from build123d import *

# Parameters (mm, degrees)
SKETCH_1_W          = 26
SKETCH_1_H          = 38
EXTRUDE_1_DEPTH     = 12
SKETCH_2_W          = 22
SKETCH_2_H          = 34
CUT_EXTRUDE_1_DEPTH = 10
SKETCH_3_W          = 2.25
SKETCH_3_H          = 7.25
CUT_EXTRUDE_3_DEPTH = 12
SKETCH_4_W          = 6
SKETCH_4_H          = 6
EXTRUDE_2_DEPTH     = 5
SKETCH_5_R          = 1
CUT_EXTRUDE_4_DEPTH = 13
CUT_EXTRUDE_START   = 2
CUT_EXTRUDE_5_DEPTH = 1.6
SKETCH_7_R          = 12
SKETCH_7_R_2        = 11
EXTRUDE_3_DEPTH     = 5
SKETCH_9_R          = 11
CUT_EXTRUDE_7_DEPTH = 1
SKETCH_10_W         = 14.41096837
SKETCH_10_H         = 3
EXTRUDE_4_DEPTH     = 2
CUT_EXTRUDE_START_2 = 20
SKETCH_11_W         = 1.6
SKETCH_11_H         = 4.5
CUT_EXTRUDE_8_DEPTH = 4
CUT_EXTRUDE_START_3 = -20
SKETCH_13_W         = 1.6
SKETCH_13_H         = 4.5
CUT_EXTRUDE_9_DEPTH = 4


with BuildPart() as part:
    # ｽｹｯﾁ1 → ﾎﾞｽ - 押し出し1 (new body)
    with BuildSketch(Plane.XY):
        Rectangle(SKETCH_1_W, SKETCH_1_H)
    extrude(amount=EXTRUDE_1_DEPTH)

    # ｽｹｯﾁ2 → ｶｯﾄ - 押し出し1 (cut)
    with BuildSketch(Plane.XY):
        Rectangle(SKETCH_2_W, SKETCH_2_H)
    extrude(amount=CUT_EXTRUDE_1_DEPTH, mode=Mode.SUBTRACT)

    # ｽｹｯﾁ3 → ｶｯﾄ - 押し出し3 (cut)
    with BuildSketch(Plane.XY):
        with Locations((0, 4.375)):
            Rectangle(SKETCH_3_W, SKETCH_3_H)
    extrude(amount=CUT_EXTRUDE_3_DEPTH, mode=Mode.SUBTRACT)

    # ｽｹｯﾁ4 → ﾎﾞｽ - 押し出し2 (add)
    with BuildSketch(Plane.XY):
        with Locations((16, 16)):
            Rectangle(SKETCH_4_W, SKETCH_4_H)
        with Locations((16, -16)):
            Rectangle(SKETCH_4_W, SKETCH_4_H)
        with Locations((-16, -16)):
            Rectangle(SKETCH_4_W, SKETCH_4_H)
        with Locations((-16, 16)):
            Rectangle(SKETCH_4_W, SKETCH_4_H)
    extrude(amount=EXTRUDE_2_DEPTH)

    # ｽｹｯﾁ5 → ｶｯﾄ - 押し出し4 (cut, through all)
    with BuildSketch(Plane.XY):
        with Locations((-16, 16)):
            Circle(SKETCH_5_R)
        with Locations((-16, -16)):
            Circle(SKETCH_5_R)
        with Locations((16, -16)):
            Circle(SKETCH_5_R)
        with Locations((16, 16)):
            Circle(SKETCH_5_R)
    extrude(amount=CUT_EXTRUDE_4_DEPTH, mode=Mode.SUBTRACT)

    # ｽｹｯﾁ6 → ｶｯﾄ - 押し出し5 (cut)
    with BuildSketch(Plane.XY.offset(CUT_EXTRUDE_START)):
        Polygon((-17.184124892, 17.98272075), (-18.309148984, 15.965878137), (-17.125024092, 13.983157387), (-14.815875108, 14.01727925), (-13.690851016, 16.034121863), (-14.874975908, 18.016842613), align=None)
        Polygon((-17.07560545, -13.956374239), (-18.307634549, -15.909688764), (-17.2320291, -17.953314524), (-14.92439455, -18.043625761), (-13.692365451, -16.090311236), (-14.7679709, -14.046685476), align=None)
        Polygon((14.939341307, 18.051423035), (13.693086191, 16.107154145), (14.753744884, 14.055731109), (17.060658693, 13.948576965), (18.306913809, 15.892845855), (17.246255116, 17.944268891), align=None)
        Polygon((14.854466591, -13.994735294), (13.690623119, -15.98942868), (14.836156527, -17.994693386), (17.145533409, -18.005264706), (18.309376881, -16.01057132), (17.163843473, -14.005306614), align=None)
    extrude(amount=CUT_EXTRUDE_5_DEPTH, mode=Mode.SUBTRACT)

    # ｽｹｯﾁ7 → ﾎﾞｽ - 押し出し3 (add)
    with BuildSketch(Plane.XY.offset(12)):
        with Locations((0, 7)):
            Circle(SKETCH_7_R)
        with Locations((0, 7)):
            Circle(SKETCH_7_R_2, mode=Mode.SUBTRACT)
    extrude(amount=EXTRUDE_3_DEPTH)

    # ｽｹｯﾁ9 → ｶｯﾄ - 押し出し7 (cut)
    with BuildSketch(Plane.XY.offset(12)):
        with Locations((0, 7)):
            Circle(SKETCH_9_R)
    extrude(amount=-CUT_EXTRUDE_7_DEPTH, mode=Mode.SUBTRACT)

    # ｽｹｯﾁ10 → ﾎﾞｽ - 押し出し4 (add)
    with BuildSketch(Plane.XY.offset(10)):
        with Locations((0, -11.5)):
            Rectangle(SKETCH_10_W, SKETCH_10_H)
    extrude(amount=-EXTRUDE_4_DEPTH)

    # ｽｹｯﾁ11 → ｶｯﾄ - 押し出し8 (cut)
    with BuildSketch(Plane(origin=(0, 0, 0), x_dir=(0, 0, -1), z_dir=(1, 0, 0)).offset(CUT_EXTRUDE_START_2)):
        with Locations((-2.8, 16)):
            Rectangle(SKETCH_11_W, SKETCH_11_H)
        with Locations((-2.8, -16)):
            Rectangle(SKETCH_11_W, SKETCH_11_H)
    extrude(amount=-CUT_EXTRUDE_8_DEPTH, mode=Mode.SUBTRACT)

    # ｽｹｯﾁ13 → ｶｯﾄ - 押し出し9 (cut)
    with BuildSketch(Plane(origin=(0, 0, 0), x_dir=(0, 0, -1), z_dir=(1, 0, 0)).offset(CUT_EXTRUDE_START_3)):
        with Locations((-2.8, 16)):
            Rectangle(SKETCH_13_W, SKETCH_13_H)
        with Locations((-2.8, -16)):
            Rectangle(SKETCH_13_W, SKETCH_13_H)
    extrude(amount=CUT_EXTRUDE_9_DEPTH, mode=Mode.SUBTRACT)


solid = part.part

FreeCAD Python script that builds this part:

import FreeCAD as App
import Part
import Sketcher
from FreeCAD import Vector
Q = App.Units.Quantity


def add_polygon(sketch, points):
    """Adds a closed chain of lines whose ends are joined by coincident constraints."""
    first, n = sketch.GeometryCount, len(points)
    for a, b in zip(points, points[1:] + points[:1]):
        sketch.addGeometry(Part.LineSegment(App.Vector(*a, 0), App.Vector(*b, 0)), False)
    for i in range(n):
        sketch.addConstraint(Sketcher.Constraint("Coincident", first + i, 2, first + (i + 1) % n, 1))

doc = App.newDocument("Part")
body = doc.addObject("PartDesign::Body", "Body")

sketch1 = doc.addObject("Sketcher::SketchObject", "Sketch")
body.addObject(sketch1)
sketch1.AttachmentSupport = (doc.XY_Plane, [""])
sketch1.MapMode = "FlatFace"
add_polygon(sketch1, [(-13, 19), (-13, -19), (13, -19), (13, 19)])
sketch1.addConstraint([
    Sketcher.Constraint("Vertical", 0),
    Sketcher.Constraint("Horizontal", 1),
    Sketcher.Constraint("Vertical", 2),
    Sketcher.Constraint("Horizontal", 3),
    Sketcher.Constraint("Symmetric", 0, 2, 2, 2, -1, 1),
    Sketcher.Constraint("DistanceX", 1, 1, 1, 2, Q("26 mm")),
    Sketcher.Constraint("DistanceY", 0, 2, 0, 1, Q("38 mm")),
])
pad1 = doc.addObject("PartDesign::Pad", "Pad")
body.addObject(pad1)
pad1.Profile = sketch1
pad1.Length = 12

sketch2 = doc.addObject("Sketcher::SketchObject", "Sketch001")
body.addObject(sketch2)
sketch2.AttachmentSupport = (doc.XY_Plane, [""])
sketch2.MapMode = "FlatFace"
add_polygon(sketch2, [(-11, 17), (-11, -17), (11, -17), (11, 17)])
sketch2.addConstraint([
    Sketcher.Constraint("Vertical", 0),
    Sketcher.Constraint("Horizontal", 1),
    Sketcher.Constraint("Vertical", 2),
    Sketcher.Constraint("Horizontal", 3),
    Sketcher.Constraint("Symmetric", 0, 2, 2, 2, -1, 1),
    Sketcher.Constraint("DistanceX", 1, 1, 1, 2, Q("22 mm")),
    Sketcher.Constraint("DistanceY", 0, 2, 0, 1, Q("34 mm")),
])
pocket1 = doc.addObject("PartDesign::Pocket", "Pocket")
body.addObject(pocket1)
pocket1.Profile = sketch2
pocket1.Length = 10
pocket1.Reversed = True

sketch3 = doc.addObject("Sketcher::SketchObject", "Sketch002")
body.addObject(sketch3)
sketch3.AttachmentSupport = (doc.XY_Plane, [""])
sketch3.MapMode = "FlatFace"
add_polygon(sketch3, [(-1.1, 8), (-1.1, 0.8), (1.1, 0.8), (1.1, 8)])
sketch3.addConstraint([
    Sketcher.Constraint("Vertical", 0),
    Sketcher.Constraint("Horizontal", 1),
    Sketcher.Constraint("Vertical", 2),
    Sketcher.Constraint("Horizontal", 3),
    Sketcher.Constraint("DistanceY", -1, 1, 2, 2, Q("8 mm")),
    Sketcher.Constraint("DistanceX", 1, 1, 1, 2, Q("2.25 mm")),
    Sketcher.Constraint("DistanceY", 0, 2, 0, 1, Q("7.25 mm")),
    Sketcher.Constraint("DistanceX", 0, 2, -1, 1, Q("1.125 mm")),
])
pocket2 = doc.addObject("PartDesign::Pocket", "Pocket001")
body.addObject(pocket2)
pocket2.Profile = sketch3
pocket2.Length = 12
pocket2.Reversed = True

sketch4 = doc.addObject("Sketcher::SketchObject", "Sketch003")
body.addObject(sketch4)
sketch4.AttachmentSupport = (doc.XY_Plane, [""])
sketch4.MapMode = "FlatFace"
add_polygon(sketch4, [(13, 19), (13, 13), (19, 13), (19, 19)])
add_polygon(sketch4, [(13, -13), (13, -19), (19, -19), (19, -13)])
add_polygon(sketch4, [(-19, -13), (-19, -19), (-13, -19), (-13, -13)])
add_polygon(sketch4, [(-19, 19), (-19, 13), (-13, 13), (-13, 19)])
sketch4.addConstraint([
    Sketcher.Constraint("Vertical", 0),
    Sketcher.Constraint("Horizontal", 1),
    Sketcher.Constraint("Vertical", 2),
    Sketcher.Constraint("Horizontal", 3),
    Sketcher.Constraint("Vertical", 4),
    Sketcher.Constraint("Horizontal", 5),
    Sketcher.Constraint("Vertical", 6),
    Sketcher.Constraint("Horizontal", 7),
    Sketcher.Constraint("Vertical", 8),
    Sketcher.Constraint("Horizontal", 9),
    Sketcher.Constraint("Vertical", 10),
    Sketcher.Constraint("Horizontal", 11),
    Sketcher.Constraint("Vertical", 12),
    Sketcher.Constraint("Horizontal", 13),
    Sketcher.Constraint("Vertical", 14),
    Sketcher.Constraint("Horizontal", 15),
    Sketcher.Constraint("Symmetric", 2, 2, 8, 2, -1, 1),
    Sketcher.Constraint("Symmetric", 0, 2, 10, 2, -1, 1),
    Sketcher.Constraint("Symmetric", 6, 2, 12, 2, -1, 1),
    Sketcher.Constraint("Symmetric", 4, 2, 14, 2, -1, 1),
    Sketcher.Constraint("Symmetric", 5, 2, 8, 2, -2),
    Sketcher.Constraint("Symmetric", 7, 2, 10, 2, -2),
    Sketcher.Constraint("Equal", 15, 0),
    Sketcher.Constraint("DistanceX", 1, 1, 1, 2, Q("6 mm")),
    Sketcher.Constraint("DistanceX", -1, 1, 0, 2, Q("13 mm")),
    Sketcher.Constraint("DistanceY", -1, 1, 0, 2, Q("13 mm")),
])
pad2 = doc.addObject("PartDesign::Pad", "Pad001")
body.addObject(pad2)
pad2.Profile = sketch4
pad2.Length = 5

sketch5 = doc.addObject("Sketcher::SketchObject", "Sketch004")
body.addObject(sketch5)
sketch5.AttachmentSupport = (doc.XY_Plane, [""])
sketch5.MapMode = "FlatFace"
sketch5.addGeometry([
    Part.Circle(Vector(-16, 16, 0), Vector(0, 0, 1), 1),
    Part.Circle(Vector(-16, -16, 0), Vector(0, 0, 1), 1),
    Part.Circle(Vector(16, -16, 0), Vector(0, 0, 1), 1),
    Part.Circle(Vector(16, 16, 0), Vector(0, 0, 1), 1),
], False)
sketch5.addConstraint([
    Sketcher.Constraint("Equal", 0, 1),
    Sketcher.Constraint("Equal", 1, 2),
    Sketcher.Constraint("Equal", 2, 3),
    Sketcher.Constraint("Symmetric", 0, 3, 2, 3, -1, 1),
    Sketcher.Constraint("Symmetric", 1, 3, 3, 3, -1, 1),
    Sketcher.Constraint("Symmetric", 1, 3, 2, 3, -2),
    Sketcher.Constraint("Diameter", 0, Q("2 mm")),
    Sketcher.Constraint("DistanceX", 0, 3, -1, 1, Q("16 mm")),
    Sketcher.Constraint("DistanceY", -1, 1, 0, 3, Q("16 mm")),
])
pocket3 = doc.addObject("PartDesign::Pocket", "Pocket002")
body.addObject(pocket3)
pocket3.Profile = sketch5
pocket3.Type = "ThroughAll"
pocket3.Reversed = True

sketch6 = doc.addObject("Sketcher::SketchObject", "Sketch005")
body.addObject(sketch6)
sketch6.AttachmentSupport = (doc.XY_Plane, [""])
sketch6.MapMode = "FlatFace"
sketch6.AttachmentOffset = App.Placement(Vector(0, 0, 2), App.Rotation())
add_polygon(sketch6, [(-17.2, 18), (-18.3, 16), (-17.1, 14), (-14.8, 14), (-13.7, 16), (-14.9, 18)])
add_polygon(sketch6, [(-17.1, -14), (-18.3, -15.9), (-17.2, -18), (-14.9, -18), (-13.7, -16.1), (-14.8, -14)])
add_polygon(sketch6, [(14.9, 18.1), (13.7, 16.1), (14.8, 14.1), (17.1, 13.9), (18.3, 15.9), (17.2, 17.9)])
add_polygon(sketch6, [(14.9, -14), (13.7, -16), (14.8, -18), (17.1, -18), (18.3, -16), (17.2, -14)])
sketch6.addConstraint([
    Sketcher.Constraint("Parallel", 0, 3),
    Sketcher.Constraint("Parallel", 1, 4),
    Sketcher.Constraint("Parallel", 2, 5),
    Sketcher.Constraint("Parallel", 6, 9),
    Sketcher.Constraint("Parallel", 7, 10),
    Sketcher.Constraint("Parallel", 8, 11),
    Sketcher.Constraint("Parallel", 12, 15),
    Sketcher.Constraint("Parallel", 13, 16),
    Sketcher.Constraint("Parallel", 14, 17),
    Sketcher.Constraint("Parallel", 18, 21),
    Sketcher.Constraint("Parallel", 19, 22),
    Sketcher.Constraint("Parallel", 20, 23),
    Sketcher.Constraint("Equal", 0, 1),
    Sketcher.Constraint("Equal", 1, 2),
    Sketcher.Constraint("Equal", 2, 3),
    Sketcher.Constraint("Equal", 5, 6),
    Sketcher.Constraint("Equal", 6, 7),
    Sketcher.Constraint("Equal", 7, 8),
    Sketcher.Constraint("Equal", 8, 9),
    Sketcher.Constraint("Equal", 11, 12),
    Sketcher.Constraint("Equal", 12, 13),
    Sketcher.Constraint("Equal", 13, 14),
    Sketcher.Constraint("Equal", 14, 15),
    Sketcher.Constraint("Equal", 17, 18),
    Sketcher.Constraint("Equal", 18, 19),
    Sketcher.Constraint("Equal", 19, 20),
    Sketcher.Constraint("Equal", 20, 21),
    Sketcher.Constraint("Distance", 0, Q("2.309401 mm")),
    Sketcher.Constraint("DistanceY", 2, 2, 0, 2, Q("1.948599 mm")),
    Sketcher.Constraint("DistanceX", 4, 2, 2, 2, Q("0.059101 mm")),
    Sketcher.Constraint("DistanceX", 9, 2, 20, 2, Q("30.837899 mm")),
    Sketcher.Constraint("DistanceX", 0, 2, -1, 1, Q("18.309149 mm")),
    Sketcher.Constraint("DistanceY", -1, 1, 0, 2, Q("15.965878 mm")),
    Sketcher.Constraint("DistanceX", 3, 2, -1, 1, Q("13.690851 mm")),
    Sketcher.Constraint("DistanceY", 6, 2, -1, 1, Q("15.909689 mm")),
    Sketcher.Constraint("DistanceX", 7, 2, -1, 1, Q("17.232029 mm")),
    Sketcher.Constraint("DistanceY", 9, 2, -1, 1, Q("16.090311 mm")),
    Sketcher.Constraint("DistanceX", 10, 2, -1, 1, Q("14.767971 mm")),
    Sketcher.Constraint("DistanceY", -1, 1, 13, 2, Q("14.055731 mm")),
    Sketcher.Constraint("DistanceX", -1, 1, 14, 2, Q("17.060659 mm")),
    Sketcher.Constraint("DistanceY", -1, 1, 16, 2, Q("17.944269 mm")),
    Sketcher.Constraint("DistanceX", -1, 1, 17, 2, Q("14.939341 mm")),
    Sketcher.Constraint("DistanceY", 18, 2, -1, 1, Q("15.989429 mm")),
    Sketcher.Constraint("DistanceY", 21, 2, -1, 1, Q("16.010571 mm")),
    Sketcher.Constraint("DistanceX", 6, 2, 1, 2, Q("1.18261 mm")),
    Sketcher.Constraint("DistanceX", 2, 2, 12, 2, Q("28.508961 mm")),
    Sketcher.Constraint("DistanceX", 9, 2, 18, 2, Q("27.382989 mm")),
    Sketcher.Constraint("DistanceY", 20, 2, 19, 2, Q("0.010571 mm")),
])
pocket4 = doc.addObject("PartDesign::Pocket", "Pocket003")
body.addObject(pocket4)
pocket4.Profile = sketch6
pocket4.Length = 1.6
pocket4.Reversed = True

sketch7 = doc.addObject("Sketcher::SketchObject", "Sketch006")
body.addObject(sketch7)
sketch7.AttachmentSupport = (doc.XY_Plane, [""])
sketch7.MapMode = "FlatFace"
sketch7.AttachmentOffset = App.Placement(Vector(0, 0, 12), App.Rotation())
sketch7.addGeometry([
    Part.Circle(Vector(0, 7, 0), Vector(0, 0, 1), 12),
    Part.Circle(Vector(0, 7, 0), Vector(0, 0, 1), 11),
], False)
sketch7.addConstraint([
    Sketcher.Constraint("Coincident", 1, 3, 0, 3),
    Sketcher.Constraint("PointOnObject", 0, 3, -2),
    Sketcher.Constraint("Diameter", 0, Q("24 mm")),
    Sketcher.Constraint("Diameter", 1, Q("22 mm")),
    Sketcher.Constraint("DistanceY", -1, 1, 0, 3, Q("7 mm")),
])
pad3 = doc.addObject("PartDesign::Pad", "Pad002")
body.addObject(pad3)
pad3.Profile = sketch7
pad3.Length = 5

sketch8 = doc.addObject("Sketcher::SketchObject", "Sketch007")
body.addObject(sketch8)
sketch8.AttachmentSupport = (doc.XY_Plane, [""])
sketch8.MapMode = "FlatFace"
sketch8.AttachmentOffset = App.Placement(Vector(0, 0, 12), App.Rotation())
sketch8.addGeometry(Part.Circle(Vector(0, 7, 0), Vector(0, 0, 1), 11), False)
sketch8.addConstraint([
    Sketcher.Constraint("PointOnObject", 0, 3, -2),
    Sketcher.Constraint("Diameter", 0, Q("22 mm")),
    Sketcher.Constraint("DistanceY", -1, 1, 0, 3, Q("7 mm")),
])
pocket5 = doc.addObject("PartDesign::Pocket", "Pocket004")
body.addObject(pocket5)
pocket5.Profile = sketch8
pocket5.Length = 1

sketch9 = doc.addObject("Sketcher::SketchObject", "Sketch008")
body.addObject(sketch9)
sketch9.AttachmentSupport = (doc.XY_Plane, [""])
sketch9.MapMode = "FlatFace"
sketch9.AttachmentOffset = App.Placement(Vector(0, 0, 10), App.Rotation())
add_polygon(sketch9, [(-7.2, -10), (-7.2, -13), (7.2, -13), (7.2, -10)])
sketch9.addConstraint([
    Sketcher.Constraint("Vertical", 0),
    Sketcher.Constraint("Horizontal", 1),
    Sketcher.Constraint("Vertical", 2),
    Sketcher.Constraint("Horizontal", 3),
    Sketcher.Constraint("DistanceY", 0, 2, 0, 1, Q("3 mm")),
    Sketcher.Constraint("DistanceY", 0, 2, -1, 1, Q("13 mm")),
    Sketcher.Constraint("DistanceX", 1, 1, 1, 2, Q("14.410968 mm")),
    Sketcher.Constraint("DistanceX", 0, 2, -1, 1, Q("7.205484 mm")),
])
pad4 = doc.addObject("PartDesign::Pad", "Pad003")
body.addObject(pad4)
pad4.Profile = sketch9
pad4.Length = 2
pad4.Reversed = True

sketch10 = doc.addObject("Sketcher::SketchObject", "Sketch009")
body.addObject(sketch10)
sketch10.AttachmentSupport = (doc.YZ_Plane, [""])
sketch10.MapMode = "FlatFace"
sketch10.AttachmentOffset = App.Placement(Vector(0, 0, 20), App.Rotation())
add_polygon(sketch10, [(18.2, 3.6), (13.8, 3.6), (13.8, 2), (18.2, 2)])
add_polygon(sketch10, [(-13.8, 3.6), (-18.2, 3.6), (-18.2, 2), (-13.8, 2)])
sketch10.addConstraint([
    Sketcher.Constraint("Horizontal", 0),
    Sketcher.Constraint("Vertical", 1),
    Sketcher.Constraint("Horizontal", 2),
    Sketcher.Constraint("Vertical", 3),
    Sketcher.Constraint("Horizontal", 4),
    Sketcher.Constraint("Vertical", 5),
    Sketcher.Constraint("Horizontal", 6),
    Sketcher.Constraint("Vertical", 7),
    Sketcher.Constraint("Symmetric", 3, 2, 4, 2, -2),
    Sketcher.Constraint("Symmetric", 1, 2, 6, 2, -2),
    Sketcher.Constraint("DistanceX", 0, 2, 0, 1, Q("4.5 mm")),
    Sketcher.Constraint("DistanceY", 1, 2, 1, 1, Q("1.6 mm")),
    Sketcher.Constraint("DistanceY", -1, 1, 1, 2, Q("2 mm")),
    Sketcher.Constraint("DistanceX", 4, 2, 0, 2, Q("32 mm")),
])
pocket6 = doc.addObject("PartDesign::Pocket", "Pocket005")
body.addObject(pocket6)
pocket6.Profile = sketch10
pocket6.Length = 4

sketch11 = doc.addObject("Sketcher::SketchObject", "Sketch010")
body.addObject(sketch11)
sketch11.AttachmentSupport = (doc.YZ_Plane, [""])
sketch11.MapMode = "FlatFace"
sketch11.AttachmentOffset = App.Placement(Vector(0, 0, -20), App.Rotation())
add_polygon(sketch11, [(18.2, 3.6), (13.8, 3.6), (13.8, 2), (18.2, 2)])
add_polygon(sketch11, [(-13.8, 3.6), (-18.2, 3.6), (-18.2, 2), (-13.8, 2)])
sketch11.addConstraint([
    Sketcher.Constraint("Horizontal", 0),
    Sketcher.Constraint("Vertical", 1),
    Sketcher.Constraint("Horizontal", 2),
    Sketcher.Constraint("Vertical", 3),
    Sketcher.Constraint("Horizontal", 4),
    Sketcher.Constraint("Vertical", 5),
    Sketcher.Constraint("Horizontal", 6),
    Sketcher.Constraint("Vertical", 7),
    Sketcher.Constraint("Symmetric", 3, 2, 4, 2, -2),
    Sketcher.Constraint("Symmetric", 1, 2, 6, 2, -2),
    Sketcher.Constraint("DistanceX", 0, 2, 0, 1, Q("4.5 mm")),
    Sketcher.Constraint("DistanceY", 1, 2, 1, 1, Q("1.6 mm")),
    Sketcher.Constraint("DistanceY", -1, 1, 1, 2, Q("2 mm")),
    Sketcher.Constraint("DistanceX", 4, 2, 0, 2, Q("32 mm")),
])
pocket7 = doc.addObject("PartDesign::Pocket", "Pocket006")
body.addObject(pocket7)
pocket7.Profile = sketch11
pocket7.Length = 4
pocket7.Reversed = True

doc.recompute()
